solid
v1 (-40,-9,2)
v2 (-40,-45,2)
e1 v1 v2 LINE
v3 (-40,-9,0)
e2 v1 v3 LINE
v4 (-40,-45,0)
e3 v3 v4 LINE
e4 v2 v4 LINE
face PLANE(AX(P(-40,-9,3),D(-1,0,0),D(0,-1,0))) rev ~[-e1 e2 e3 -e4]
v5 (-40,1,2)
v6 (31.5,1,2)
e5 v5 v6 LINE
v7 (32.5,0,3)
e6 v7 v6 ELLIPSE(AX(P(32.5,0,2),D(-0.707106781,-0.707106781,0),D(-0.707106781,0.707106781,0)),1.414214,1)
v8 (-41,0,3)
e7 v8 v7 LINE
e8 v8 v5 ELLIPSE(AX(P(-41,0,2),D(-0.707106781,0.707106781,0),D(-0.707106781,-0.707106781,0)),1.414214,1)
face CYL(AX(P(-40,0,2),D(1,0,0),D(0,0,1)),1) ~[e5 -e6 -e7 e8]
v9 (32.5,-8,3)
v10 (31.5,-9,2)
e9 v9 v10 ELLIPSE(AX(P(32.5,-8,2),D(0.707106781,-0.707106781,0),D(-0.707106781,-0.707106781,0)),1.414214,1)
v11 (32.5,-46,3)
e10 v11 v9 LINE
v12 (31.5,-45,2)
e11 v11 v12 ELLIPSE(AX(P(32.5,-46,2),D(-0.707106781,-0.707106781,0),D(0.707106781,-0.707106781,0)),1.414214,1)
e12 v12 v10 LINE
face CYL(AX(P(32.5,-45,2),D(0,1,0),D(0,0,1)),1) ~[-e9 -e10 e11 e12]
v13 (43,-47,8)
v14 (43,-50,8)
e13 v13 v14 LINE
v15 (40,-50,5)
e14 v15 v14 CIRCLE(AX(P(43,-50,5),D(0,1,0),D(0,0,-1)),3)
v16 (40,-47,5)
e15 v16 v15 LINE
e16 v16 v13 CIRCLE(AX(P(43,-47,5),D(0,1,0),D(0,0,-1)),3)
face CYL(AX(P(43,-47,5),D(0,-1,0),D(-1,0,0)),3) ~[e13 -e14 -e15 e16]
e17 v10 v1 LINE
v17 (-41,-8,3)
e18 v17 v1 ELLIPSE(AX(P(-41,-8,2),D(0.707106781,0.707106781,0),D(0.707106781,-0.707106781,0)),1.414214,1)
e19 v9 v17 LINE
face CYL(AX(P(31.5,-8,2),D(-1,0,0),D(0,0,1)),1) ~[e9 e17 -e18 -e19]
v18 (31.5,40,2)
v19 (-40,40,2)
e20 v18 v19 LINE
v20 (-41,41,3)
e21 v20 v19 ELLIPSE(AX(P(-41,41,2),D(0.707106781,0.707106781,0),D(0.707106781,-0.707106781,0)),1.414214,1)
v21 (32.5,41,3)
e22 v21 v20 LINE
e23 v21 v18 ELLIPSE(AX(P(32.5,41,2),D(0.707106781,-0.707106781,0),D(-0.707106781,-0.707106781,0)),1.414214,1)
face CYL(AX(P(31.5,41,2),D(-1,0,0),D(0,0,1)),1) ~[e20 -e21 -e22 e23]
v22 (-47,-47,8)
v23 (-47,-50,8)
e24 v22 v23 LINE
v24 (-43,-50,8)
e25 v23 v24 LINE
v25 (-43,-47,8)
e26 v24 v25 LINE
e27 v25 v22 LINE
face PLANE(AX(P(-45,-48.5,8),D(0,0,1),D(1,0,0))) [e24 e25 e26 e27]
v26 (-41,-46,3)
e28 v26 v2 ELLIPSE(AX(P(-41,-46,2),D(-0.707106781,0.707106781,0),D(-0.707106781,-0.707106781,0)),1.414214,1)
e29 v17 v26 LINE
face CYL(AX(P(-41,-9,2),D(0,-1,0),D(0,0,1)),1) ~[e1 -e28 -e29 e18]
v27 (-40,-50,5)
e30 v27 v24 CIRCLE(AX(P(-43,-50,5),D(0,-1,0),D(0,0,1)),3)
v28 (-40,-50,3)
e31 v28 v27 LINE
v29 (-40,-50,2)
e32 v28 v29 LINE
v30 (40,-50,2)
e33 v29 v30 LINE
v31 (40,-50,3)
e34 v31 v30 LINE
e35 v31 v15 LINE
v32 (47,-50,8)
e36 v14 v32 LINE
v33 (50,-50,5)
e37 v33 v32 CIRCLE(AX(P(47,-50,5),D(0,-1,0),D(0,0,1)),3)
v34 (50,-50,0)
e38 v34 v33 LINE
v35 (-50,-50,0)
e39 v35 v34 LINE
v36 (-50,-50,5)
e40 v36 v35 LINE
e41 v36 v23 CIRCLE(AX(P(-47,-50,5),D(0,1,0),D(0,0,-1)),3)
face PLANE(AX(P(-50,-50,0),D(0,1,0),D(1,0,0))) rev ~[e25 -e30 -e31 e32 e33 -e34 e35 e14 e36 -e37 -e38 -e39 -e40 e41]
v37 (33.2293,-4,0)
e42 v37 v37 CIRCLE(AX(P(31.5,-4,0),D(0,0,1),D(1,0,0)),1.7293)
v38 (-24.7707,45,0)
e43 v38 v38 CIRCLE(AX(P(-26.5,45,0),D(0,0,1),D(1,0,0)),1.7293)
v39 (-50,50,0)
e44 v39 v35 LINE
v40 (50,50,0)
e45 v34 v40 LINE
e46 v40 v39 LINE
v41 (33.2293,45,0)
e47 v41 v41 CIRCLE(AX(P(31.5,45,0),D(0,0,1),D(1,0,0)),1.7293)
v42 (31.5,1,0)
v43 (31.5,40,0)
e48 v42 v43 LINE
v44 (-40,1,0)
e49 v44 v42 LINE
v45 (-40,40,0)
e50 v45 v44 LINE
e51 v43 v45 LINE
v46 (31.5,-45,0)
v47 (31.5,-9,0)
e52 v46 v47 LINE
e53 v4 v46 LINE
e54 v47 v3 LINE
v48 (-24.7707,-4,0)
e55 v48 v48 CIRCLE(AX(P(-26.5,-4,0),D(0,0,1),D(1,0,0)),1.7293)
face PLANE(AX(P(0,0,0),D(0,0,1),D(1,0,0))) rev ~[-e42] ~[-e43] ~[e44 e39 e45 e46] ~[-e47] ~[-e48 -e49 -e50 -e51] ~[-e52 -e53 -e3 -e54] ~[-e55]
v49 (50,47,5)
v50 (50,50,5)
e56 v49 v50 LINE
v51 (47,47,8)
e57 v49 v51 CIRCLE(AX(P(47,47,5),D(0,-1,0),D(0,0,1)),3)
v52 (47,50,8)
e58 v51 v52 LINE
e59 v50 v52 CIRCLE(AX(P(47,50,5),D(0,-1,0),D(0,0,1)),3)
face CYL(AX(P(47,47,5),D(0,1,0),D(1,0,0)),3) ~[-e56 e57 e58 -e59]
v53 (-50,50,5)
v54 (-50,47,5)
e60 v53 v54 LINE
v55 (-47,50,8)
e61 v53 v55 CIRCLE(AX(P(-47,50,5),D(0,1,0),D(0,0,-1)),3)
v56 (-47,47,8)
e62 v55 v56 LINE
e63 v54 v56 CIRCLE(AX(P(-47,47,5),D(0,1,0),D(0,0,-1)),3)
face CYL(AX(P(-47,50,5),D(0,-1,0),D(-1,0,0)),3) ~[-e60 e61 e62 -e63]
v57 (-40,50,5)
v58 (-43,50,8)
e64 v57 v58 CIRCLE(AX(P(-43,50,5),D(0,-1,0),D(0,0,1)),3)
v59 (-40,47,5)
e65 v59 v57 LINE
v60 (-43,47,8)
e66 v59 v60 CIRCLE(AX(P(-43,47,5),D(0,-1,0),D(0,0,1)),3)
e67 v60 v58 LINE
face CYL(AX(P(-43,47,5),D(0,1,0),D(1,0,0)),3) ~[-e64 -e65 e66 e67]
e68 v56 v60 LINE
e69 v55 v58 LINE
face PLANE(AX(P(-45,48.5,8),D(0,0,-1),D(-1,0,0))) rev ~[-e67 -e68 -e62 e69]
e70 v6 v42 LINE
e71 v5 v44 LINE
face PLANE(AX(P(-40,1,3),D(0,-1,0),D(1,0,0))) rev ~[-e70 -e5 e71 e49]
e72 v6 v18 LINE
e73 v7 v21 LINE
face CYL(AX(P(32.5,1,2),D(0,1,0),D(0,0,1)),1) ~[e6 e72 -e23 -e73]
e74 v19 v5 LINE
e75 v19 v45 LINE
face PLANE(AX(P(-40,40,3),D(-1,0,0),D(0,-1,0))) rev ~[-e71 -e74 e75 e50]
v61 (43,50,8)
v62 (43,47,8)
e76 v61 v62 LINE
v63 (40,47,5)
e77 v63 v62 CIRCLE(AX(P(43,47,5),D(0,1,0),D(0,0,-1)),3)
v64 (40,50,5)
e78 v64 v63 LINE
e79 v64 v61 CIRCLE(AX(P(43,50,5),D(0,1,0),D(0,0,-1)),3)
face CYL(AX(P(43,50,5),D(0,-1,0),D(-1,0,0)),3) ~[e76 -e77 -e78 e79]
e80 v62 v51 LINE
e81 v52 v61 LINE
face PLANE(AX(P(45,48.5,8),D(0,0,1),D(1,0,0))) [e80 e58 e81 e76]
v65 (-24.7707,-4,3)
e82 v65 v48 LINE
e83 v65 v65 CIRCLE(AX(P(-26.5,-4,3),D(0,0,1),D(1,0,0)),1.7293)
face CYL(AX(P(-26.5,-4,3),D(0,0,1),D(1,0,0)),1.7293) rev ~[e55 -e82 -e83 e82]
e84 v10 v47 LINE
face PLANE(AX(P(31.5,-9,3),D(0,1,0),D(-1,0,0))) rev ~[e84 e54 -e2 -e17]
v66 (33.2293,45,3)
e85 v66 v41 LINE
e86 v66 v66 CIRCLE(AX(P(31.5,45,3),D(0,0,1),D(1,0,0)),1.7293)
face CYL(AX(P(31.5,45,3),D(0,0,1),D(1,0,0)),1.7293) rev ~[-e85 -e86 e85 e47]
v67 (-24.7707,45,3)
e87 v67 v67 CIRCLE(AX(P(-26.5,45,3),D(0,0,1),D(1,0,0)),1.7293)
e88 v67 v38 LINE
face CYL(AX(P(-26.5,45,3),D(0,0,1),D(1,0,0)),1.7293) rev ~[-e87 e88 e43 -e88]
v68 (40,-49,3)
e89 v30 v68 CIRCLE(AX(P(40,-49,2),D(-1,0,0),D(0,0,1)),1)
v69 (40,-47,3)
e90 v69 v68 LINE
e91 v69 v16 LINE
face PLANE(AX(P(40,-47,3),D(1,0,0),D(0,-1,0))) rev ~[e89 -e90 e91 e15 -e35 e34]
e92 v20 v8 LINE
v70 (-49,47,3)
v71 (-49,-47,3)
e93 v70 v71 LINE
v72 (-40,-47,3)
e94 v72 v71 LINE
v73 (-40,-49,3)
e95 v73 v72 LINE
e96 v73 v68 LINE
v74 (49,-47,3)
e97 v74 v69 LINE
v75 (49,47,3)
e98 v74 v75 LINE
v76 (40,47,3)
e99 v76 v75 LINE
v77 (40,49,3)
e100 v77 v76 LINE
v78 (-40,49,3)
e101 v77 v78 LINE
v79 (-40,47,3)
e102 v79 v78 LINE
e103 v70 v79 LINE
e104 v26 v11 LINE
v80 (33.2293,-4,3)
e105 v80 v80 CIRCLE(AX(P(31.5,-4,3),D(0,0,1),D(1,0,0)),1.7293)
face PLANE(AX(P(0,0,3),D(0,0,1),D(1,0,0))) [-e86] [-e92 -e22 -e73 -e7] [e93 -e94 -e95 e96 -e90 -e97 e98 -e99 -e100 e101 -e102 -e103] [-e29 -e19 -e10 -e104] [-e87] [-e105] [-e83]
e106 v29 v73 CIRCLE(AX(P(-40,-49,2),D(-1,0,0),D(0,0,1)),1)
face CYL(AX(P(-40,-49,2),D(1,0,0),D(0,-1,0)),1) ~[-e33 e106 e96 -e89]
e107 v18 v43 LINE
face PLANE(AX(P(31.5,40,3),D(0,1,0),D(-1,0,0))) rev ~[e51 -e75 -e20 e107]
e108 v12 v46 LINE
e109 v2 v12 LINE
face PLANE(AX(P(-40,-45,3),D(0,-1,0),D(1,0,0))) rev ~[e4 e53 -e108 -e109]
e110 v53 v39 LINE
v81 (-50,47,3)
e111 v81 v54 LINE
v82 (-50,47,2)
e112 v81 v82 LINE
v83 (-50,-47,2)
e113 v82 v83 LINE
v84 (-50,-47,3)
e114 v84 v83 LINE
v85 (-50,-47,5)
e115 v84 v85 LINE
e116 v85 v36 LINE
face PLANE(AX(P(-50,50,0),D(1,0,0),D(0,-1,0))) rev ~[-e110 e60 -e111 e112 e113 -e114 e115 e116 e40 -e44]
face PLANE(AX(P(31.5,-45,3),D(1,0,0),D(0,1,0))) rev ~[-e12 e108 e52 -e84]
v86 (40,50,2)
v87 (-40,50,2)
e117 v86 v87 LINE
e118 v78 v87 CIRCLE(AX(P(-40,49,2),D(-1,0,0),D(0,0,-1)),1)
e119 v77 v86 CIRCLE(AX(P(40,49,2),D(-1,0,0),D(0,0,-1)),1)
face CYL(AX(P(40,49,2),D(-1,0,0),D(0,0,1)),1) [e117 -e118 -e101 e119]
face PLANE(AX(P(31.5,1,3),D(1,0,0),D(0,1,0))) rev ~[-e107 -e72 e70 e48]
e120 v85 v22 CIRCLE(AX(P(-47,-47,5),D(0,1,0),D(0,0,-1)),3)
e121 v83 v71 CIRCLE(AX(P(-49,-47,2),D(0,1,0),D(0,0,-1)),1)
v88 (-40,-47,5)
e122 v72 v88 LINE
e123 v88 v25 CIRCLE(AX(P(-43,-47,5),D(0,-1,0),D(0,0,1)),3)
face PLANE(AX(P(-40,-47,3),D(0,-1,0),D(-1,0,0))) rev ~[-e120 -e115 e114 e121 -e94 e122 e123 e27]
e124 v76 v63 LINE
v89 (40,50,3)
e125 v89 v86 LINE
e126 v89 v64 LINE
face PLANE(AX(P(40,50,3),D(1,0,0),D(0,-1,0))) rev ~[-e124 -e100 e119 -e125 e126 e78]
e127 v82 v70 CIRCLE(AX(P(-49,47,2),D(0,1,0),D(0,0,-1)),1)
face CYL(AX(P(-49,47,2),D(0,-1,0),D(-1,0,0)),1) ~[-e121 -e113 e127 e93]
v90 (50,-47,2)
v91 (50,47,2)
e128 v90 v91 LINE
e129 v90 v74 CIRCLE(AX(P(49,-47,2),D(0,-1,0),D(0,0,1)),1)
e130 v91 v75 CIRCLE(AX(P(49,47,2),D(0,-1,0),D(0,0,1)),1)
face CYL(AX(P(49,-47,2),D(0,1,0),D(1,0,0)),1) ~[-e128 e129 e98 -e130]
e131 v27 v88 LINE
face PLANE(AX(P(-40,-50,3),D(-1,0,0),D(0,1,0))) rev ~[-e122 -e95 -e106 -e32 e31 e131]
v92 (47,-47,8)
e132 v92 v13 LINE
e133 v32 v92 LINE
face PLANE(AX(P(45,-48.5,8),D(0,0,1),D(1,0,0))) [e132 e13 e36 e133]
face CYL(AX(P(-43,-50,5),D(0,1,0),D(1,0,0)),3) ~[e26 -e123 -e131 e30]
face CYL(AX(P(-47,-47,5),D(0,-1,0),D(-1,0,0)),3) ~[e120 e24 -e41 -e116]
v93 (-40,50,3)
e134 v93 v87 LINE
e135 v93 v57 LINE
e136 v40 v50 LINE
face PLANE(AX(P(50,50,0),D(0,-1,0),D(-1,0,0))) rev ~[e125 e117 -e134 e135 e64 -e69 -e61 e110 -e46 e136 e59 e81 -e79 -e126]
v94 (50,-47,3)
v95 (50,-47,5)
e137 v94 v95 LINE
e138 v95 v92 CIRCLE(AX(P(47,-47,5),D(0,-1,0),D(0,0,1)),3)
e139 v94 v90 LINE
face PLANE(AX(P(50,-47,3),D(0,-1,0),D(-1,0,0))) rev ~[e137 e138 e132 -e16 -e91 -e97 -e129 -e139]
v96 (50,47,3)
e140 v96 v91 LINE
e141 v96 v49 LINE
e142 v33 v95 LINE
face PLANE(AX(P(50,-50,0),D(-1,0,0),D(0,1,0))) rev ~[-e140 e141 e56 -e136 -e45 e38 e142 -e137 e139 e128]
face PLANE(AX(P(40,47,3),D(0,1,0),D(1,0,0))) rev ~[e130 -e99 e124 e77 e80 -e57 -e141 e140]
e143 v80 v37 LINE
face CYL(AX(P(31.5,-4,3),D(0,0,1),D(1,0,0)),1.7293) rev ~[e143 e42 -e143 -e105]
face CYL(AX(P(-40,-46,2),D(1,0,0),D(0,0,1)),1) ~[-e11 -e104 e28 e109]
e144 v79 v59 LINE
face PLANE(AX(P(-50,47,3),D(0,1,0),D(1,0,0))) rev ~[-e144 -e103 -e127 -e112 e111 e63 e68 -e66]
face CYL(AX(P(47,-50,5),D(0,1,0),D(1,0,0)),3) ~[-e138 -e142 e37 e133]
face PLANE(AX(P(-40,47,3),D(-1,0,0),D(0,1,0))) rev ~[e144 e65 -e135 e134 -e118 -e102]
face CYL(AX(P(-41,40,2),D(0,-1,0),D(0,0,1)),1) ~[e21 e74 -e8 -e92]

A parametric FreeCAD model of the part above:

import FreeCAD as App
import Part
import Sketcher
from FreeCAD import Vector
Q = App.Units.Quantity


def edges_at(feature, points):
    """Names of the edges that pass closest to the given points."""
    edges = feature.Shape.Edges
    near = lambda p: min(range(len(edges)), key=lambda i: edges[i].distToShape(Part.Vertex(*p))[0])
    return sorted({f"Edge{near(p) + 1}" for p in points})


def add_polygon(sketch, points):
    """Adds a closed chain of lines whose ends are joined by coincident constraints."""
    first, n = sketch.GeometryCount, len(points)
    for a, b in zip(points, points[1:] + points[:1]):
        sketch.addGeometry(Part.LineSegment(App.Vector(*a, 0), App.Vector(*b, 0)), False)
    for i in range(n):
        sketch.addConstraint(Sketcher.Constraint("Coincident", first + i, 2, first + (i + 1) % n, 1))

doc = App.newDocument("Part")
body = doc.addObject("PartDesign::Body", "Body")

# Sketch on XY plane
sketch1 = body.newObject("Sketcher::SketchObject", "Sketch")
sketch1.AttachmentSupport = (doc.getObject("XY_Plane"), [""])
sketch1.MapMode = "FlatFace"
add_polygon(sketch1, [(-50, 50), (-50, -50), (50, -50), (50, 50)])  # lines 0-3
sketch1.addConstraint([
    Sketcher.Constraint("Vertical", 0),
    Sketcher.Constraint("Horizontal", 1),
    Sketcher.Constraint("Vertical", 2),
    Sketcher.Constraint("Horizontal", 3),
    Sketcher.Constraint("Symmetric", 0, 2, 2, 2, -1, 1),
    Sketcher.Constraint("Equal", 3, 0),
    Sketcher.Constraint("DistanceX", 1, 1, 1, 2, Q("100 mm")),
])
pad1 = body.newObject("PartDesign::Pad", "Pad")
pad1.Profile = sketch1
pad1.Length = 3

# Sketch on XY plane
sketch2 = body.newObject("Sketcher::SketchObject", "Sketch001")
sketch2.AttachmentSupport = (doc.getObject("XY_Plane"), [""])
sketch2.MapMode = "FlatFace"
sketch2.AttachmentOffset = App.Placement(Vector(0, 0, 3), App.Rotation())
sketch2.addGeometry(Part.Circle(Vector(31.5, 45, 0), Vector(0, 0, 1), 1.7293), False)  # 0
sketch2.addGeometry(Part.Circle(Vector(31.5, -4, 0), Vector(0, 0, 1), 1.7293), False)  # 1
sketch2.addGeometry(Part.Circle(Vector(-26.5, -4, 0), Vector(0, 0, 1), 1.7293), False)  # 2
add_polygon(sketch2, [(-40, 40), (-40, 1), (31.5, 1), (31.5, 40)])  # lines 3-6
sketch2.addGeometry(Part.Circle(Vector(-26.5, 45, 0), Vector(0, 0, 1), 1.7293), False)  # 7
add_polygon(sketch2, [(-40, -9), (-40, -45), (31.5, -45), (31.5, -9)])  # lines 8-11
sketch2.addConstraint([
    Sketcher.Constraint("Vertical", 3),
    Sketcher.Constraint("Horizontal", 4),
    Sketcher.Constraint("Vertical", 5),
    Sketcher.Constraint("Horizontal", 6),
    Sketcher.Constraint("Vertical", 8),
    Sketcher.Constraint("Horizontal", 9),
    Sketcher.Constraint("Vertical", 10),
    Sketcher.Constraint("Horizontal", 11),
    Sketcher.Constraint("Equal", 0, 1),
    Sketcher.Constraint("Equal", 1, 2),
    Sketcher.Constraint("Equal", 2, 7),
    Sketcher.Constraint("Horizontal", 1, 3, 2, 3),
    Sketcher.Constraint("Horizontal", 0, 3, 7, 3),
    Sketcher.Constraint("Vertical", 0, 3, 1, 3),
    Sketcher.Constraint("Vertical", 2, 3, 7, 3),
    Sketcher.Constraint("Vertical", 1, 3, 4, 2),
    Sketcher.Constraint("Vertical", 6, 2, 8, 2),
    Sketcher.Constraint("Vertical", 5, 2, 9, 2),
    Sketcher.Constraint("DistanceX", 2, 3, -1, 1, Q("26.5 mm")),
    Sketcher.Constraint("DistanceY", 3, 2, 3, 1, Q("39 mm")),
    Sketcher.Constraint("DistanceY", 8, 2, 8, 1, Q("36 mm")),
    Sketcher.Constraint("DistanceX", 4, 1, 4, 2, Q("71.5 mm")),
    Sketcher.Constraint("DistanceY", -1, 1, 0, 3, Q("45 mm")),
    Sketcher.Constraint("DistanceY", 1, 3, -1, 1, Q("4 mm")),
    Sketcher.Constraint("DistanceX", 3, 2, -1, 1, Q("40 mm")),
    Sketcher.Constraint("DistanceY", -1, 1, 3, 2, Q("1 mm")),
    Sketcher.Constraint("DistanceY", 8, 2, -1, 1, Q("45 mm")),
    Sketcher.Constraint("Diameter", 0, Q("3.4586 mm")),
])
pocket1 = body.newObject("PartDesign::Pocket", "Pocket")
pocket1.Profile = sketch2
pocket1.Length = 3

# Sketch on XY plane
sketch3 = body.newObject("Sketcher::SketchObject", "Sketch002")
sketch3.AttachmentSupport = (doc.getObject("XY_Plane"), [""])
sketch3.MapMode = "FlatFace"
sketch3.AttachmentOffset = App.Placement(Vector(0, 0, 3), App.Rotation())
add_polygon(sketch3, [(-40, 50), (-50, 50), (-50, 47), (-40, 47)])  # lines 0-3
add_polygon(sketch3, [(50, 50), (40, 50), (40, 47), (50, 47)])  # lines 4-7
add_polygon(sketch3, [(40, -50), (50, -50), (50, -47), (40, -47)])  # lines 8-11
add_polygon(sketch3, [(-50, -50), (-40, -50), (-40, -47), (-50, -47)])  # lines 12-15
sketch3.addConstraint([
    Sketcher.Constraint("Horizontal", 0),
    Sketcher.Constraint("Vertical", 1),
    Sketcher.Constraint("Horizontal", 2),
    Sketcher.Constraint("Vertical", 3),
    Sketcher.Constraint("Horizontal", 4),
    Sketcher.Constraint("Vertical", 5),
    Sketcher.Constraint("Horizontal", 6),
    Sketcher.Constraint("Vertical", 7),
    Sketcher.Constraint("Horizontal", 8),
    Sketcher.Constraint("Vertical", 9),
    Sketcher.Constraint("Horizontal", 10),
    Sketcher.Constraint("Vertical", 11),
    Sketcher.Constraint("Horizontal", 12),
    Sketcher.Constraint("Vertical", 13),
    Sketcher.Constraint("Horizontal", 14),
    Sketcher.Constraint("Vertical", 15),
    Sketcher.Constraint("Symmetric", 0, 2, 8, 2, -1, 1),
    Sketcher.Constraint("Symmetric", 2, 2, 10, 2, -1, 1),
    Sketcher.Constraint("Symmetric", 4, 2, 12, 2, -1, 1),
    Sketcher.Constraint("Symmetric", 6, 2, 14, 2, -1, 1),
    Sketcher.Constraint("Symmetric", 3, 2, 4, 2, -2),
    Sketcher.Constraint("Symmetric", 1, 2, 6, 2, -2),
    Sketcher.Constraint("DistanceX", 0, 2, 0, 1, Q("10 mm")),
    Sketcher.Constraint("DistanceY", 1, 2, 1, 1, Q("3 mm")),
    Sketcher.Constraint("DistanceX", 0, 2, -1, 1, Q("50 mm")),
    Sketcher.Constraint("DistanceY", -1, 1, 0, 2, Q("50 mm")),
])
pad2 = body.newObject("PartDesign::Pad", "Pad001")
pad2.Profile = sketch3
pad2.Length = 5
doc.recompute()

fillet = body.newObject("PartDesign::Fillet", "Fillet")
fillet.Base = (pad2, edges_at(pad2, [
    (-40, 48.5, 8),
    (-50, 48.5, 8),
    (50, 48.5, 8),
    (40, 48.5, 8),
    (50, -48.5, 8),
    (40, -48.5, 8),
    (-40, -48.5, 8),
    (-50, -48.5, 8),
]))
fillet.Radius = 3
doc.recompute()

fillet2 = body.newObject("PartDesign::Fillet", "Fillet001")
fillet2.Base = (fillet, edges_at(fillet, [
    (-40, 20.5, 3),
    (-4.25, 40, 3),
    (31.5, 20.5, 3),
    (-4.25, 1, 3),
    (-40, -27, 3),
    (-4.25, -9, 3),
    (50, 0, 3),
    (0, -50, 3),
    (-4.25, -45, 3),
    (31.5, -27, 3),
    (0, 50, 3),
    (-50, 0, 3),
]))
fillet2.Radius = 1

doc.recompute()
